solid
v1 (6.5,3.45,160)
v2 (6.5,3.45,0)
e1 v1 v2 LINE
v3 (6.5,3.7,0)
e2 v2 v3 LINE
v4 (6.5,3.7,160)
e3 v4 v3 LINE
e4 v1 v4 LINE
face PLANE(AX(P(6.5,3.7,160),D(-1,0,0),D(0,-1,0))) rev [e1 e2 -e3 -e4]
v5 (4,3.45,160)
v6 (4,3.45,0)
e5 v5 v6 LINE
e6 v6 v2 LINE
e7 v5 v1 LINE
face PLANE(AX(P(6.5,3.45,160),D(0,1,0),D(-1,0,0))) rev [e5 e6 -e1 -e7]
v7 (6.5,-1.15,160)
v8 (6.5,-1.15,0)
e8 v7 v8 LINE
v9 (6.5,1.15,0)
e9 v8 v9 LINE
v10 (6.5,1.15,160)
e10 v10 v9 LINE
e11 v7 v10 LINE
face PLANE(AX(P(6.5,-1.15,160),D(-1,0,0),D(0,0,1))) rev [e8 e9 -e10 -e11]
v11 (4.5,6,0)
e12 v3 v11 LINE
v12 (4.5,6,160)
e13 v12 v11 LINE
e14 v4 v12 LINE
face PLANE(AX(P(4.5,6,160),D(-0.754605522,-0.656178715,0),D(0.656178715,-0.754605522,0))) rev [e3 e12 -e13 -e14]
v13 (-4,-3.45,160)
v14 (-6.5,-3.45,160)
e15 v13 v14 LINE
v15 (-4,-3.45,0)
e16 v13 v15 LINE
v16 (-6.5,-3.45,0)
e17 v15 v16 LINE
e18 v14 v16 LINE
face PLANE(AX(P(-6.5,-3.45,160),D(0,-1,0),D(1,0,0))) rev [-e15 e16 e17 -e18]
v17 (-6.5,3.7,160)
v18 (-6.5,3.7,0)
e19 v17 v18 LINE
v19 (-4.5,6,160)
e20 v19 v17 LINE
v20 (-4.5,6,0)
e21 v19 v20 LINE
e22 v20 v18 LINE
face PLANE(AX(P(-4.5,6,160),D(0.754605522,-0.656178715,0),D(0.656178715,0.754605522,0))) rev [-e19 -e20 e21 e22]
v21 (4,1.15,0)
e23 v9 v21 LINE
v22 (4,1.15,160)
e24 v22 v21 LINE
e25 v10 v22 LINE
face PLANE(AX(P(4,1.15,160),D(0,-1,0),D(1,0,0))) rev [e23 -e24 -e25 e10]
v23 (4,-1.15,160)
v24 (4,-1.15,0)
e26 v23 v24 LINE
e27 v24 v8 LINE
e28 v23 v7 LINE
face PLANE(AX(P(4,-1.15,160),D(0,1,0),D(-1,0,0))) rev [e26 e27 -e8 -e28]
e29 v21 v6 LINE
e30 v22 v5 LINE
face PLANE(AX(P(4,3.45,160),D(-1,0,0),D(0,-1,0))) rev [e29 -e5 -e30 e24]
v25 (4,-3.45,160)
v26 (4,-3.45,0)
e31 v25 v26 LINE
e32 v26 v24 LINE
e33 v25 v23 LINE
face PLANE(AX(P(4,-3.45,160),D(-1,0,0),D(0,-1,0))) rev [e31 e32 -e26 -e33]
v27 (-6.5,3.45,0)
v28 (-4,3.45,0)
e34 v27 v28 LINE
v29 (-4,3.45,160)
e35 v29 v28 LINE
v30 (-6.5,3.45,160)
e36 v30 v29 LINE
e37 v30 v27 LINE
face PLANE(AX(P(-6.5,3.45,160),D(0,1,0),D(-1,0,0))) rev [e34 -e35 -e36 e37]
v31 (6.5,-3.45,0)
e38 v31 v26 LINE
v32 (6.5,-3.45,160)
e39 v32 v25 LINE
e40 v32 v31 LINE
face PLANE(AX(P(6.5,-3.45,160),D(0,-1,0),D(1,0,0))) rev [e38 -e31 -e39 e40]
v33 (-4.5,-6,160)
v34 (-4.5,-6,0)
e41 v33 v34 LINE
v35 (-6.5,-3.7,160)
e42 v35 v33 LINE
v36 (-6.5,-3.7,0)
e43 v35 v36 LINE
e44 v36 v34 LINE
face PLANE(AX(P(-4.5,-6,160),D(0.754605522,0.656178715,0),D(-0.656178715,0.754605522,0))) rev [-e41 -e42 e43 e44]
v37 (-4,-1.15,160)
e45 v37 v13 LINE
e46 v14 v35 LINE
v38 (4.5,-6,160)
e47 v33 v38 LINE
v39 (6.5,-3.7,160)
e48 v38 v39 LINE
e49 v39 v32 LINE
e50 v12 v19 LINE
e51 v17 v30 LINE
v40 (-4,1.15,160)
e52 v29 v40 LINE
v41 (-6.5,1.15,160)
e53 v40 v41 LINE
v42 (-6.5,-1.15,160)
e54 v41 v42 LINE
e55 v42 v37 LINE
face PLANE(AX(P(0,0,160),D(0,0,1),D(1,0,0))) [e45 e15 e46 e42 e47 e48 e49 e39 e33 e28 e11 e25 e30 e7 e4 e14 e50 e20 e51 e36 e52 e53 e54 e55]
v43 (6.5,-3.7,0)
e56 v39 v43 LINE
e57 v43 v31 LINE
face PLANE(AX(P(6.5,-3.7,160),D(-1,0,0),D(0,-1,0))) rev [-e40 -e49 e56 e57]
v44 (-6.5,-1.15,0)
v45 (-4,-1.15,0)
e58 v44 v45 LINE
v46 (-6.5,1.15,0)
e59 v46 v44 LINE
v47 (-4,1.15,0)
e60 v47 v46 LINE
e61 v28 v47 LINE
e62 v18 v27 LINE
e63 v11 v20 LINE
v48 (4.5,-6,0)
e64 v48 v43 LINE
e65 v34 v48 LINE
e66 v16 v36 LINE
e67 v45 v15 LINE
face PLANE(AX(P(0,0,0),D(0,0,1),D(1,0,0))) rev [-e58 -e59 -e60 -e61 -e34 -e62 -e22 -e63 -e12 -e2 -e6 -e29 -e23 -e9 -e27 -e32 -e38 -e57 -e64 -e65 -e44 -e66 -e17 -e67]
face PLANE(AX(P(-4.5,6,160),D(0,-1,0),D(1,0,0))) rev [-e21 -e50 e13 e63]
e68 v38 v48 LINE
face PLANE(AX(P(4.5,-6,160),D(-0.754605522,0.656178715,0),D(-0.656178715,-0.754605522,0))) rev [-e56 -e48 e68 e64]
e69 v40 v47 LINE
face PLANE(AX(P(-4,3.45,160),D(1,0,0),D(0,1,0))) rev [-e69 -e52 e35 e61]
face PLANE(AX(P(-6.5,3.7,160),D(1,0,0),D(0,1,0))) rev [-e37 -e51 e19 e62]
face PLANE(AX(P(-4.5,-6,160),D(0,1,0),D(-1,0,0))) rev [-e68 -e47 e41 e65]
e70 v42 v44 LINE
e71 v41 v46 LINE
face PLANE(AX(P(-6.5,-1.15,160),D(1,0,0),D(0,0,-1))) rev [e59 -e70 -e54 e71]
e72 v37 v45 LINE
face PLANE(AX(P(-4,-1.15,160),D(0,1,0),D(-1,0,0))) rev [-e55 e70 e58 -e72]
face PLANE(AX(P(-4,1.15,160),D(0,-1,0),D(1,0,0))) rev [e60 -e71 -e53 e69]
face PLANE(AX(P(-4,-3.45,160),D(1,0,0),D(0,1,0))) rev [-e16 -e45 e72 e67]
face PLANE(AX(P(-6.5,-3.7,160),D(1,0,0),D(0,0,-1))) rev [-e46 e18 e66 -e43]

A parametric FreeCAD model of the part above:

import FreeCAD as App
import Part
import Sketcher

doc = App.newDocument("Part")
body = doc.addObject("PartDesign::Body", "Body")

# Sketch on XY plane
sketch1 = body.newObject("Sketcher::SketchObject", "Sketch")
sketch1.AttachmentSupport = (doc.getObject("XY_Plane"), [""])
sketch1.MapMode = "FlatFace"
sketch1.addGeometry([
    Part.LineSegment(App.Vector(-4.5, -6, 0), App.Vector(4.5, -6, 0)),  # 0
    Part.LineSegment(App.Vector(4.5, -6, 0), App.Vector(6.5, -3.7, 0)),  # 1
    Part.LineSegment(App.Vector(6.5, -3.7, 0), App.Vector(6.5, -3.45, 0)),  # 2
    Part.LineSegment(App.Vector(6.5, -3.45, 0), App.Vector(4, -3.45, 0)),  # 3
    Part.LineSegment(App.Vector(4, -3.45, 0), App.Vector(4, -1.15, 0)),  # 4
    Part.LineSegment(App.Vector(4, -1.15, 0), App.Vector(6.5, -1.15, 0)),  # 5
    Part.LineSegment(App.Vector(6.5, -1.15, 0), App.Vector(6.5, 1.15, 0)),  # 6
    Part.LineSegment(App.Vector(6.5, 1.15, 0), App.Vector(4, 1.15, 0)),  # 7
    Part.LineSegment(App.Vector(4, 1.15, 0), App.Vector(4, 3.45, 0)),  # 8
    Part.LineSegment(App.Vector(4, 3.45, 0), App.Vector(6.5, 3.45, 0)),  # 9
    Part.LineSegment(App.Vector(6.5, 3.45, 0), App.Vector(6.5, 3.7, 0)),  # 10
    Part.LineSegment(App.Vector(6.5, 3.7, 0), App.Vector(4.5, 6, 0)),  # 11
    Part.LineSegment(App.Vector(4.5, 6, 0), App.Vector(-4.5, 6, 0)),  # 12
    Part.LineSegment(App.Vector(-4.5, 6, 0), App.Vector(-6.5, 3.7, 0)),  # 13
    Part.LineSegment(App.Vector(-6.5, 3.7, 0), App.Vector(-6.5, 3.45, 0)),  # 14
    Part.LineSegment(App.Vector(-6.5, 3.45, 0), App.Vector(-4, 3.45, 0)),  # 15
    Part.LineSegment(App.Vector(-4, 3.45, 0), App.Vector(-4, 1.15, 0)),  # 16
    Part.LineSegment(App.Vector(-4, 1.15, 0), App.Vector(-6.5, 1.15, 0)),  # 17
    Part.LineSegment(App.Vector(-6.5, 1.15, 0), App.Vector(-6.5, -1.15, 0)),  # 18
    Part.LineSegment(App.Vector(-6.5, -1.15, 0), App.Vector(-4, -1.15, 0)),  # 19
    Part.LineSegment(App.Vector(-4, -1.15, 0), App.Vector(-4, -3.45, 0)),  # 20
    Part.LineSegment(App.Vector(-4, -3.45, 0), App.Vector(-6.5, -3.45, 0)),  # 21
    Part.LineSegment(App.Vector(-6.5, -3.45, 0), App.Vector(-6.5, -3.7, 0)),  # 22
    Part.LineSegment(App.Vector(-6.5, -3.7, 0), App.Vector(-4.5, -6, 0)),  # 23
], False)
sketch1.addConstraint([
    Sketcher.Constraint("Coincident", 0, 2, 1, 1),
    Sketcher.Constraint("Coincident", 1, 2, 2, 1),
    Sketcher.Constraint("Coincident", 2, 2, 3, 1),
    Sketcher.Constraint("Coincident", 3, 2, 4, 1),
    Sketcher.Constraint("Coincident", 4, 2, 5, 1),
    Sketcher.Constraint("Coincident", 5, 2, 6, 1),
    Sketcher.Constraint("Coincident", 6, 2, 7, 1),
    Sketcher.Constraint("Coincident", 7, 2, 8, 1),
    Sketcher.Constraint("Coincident", 8, 2, 9, 1),
    Sketcher.Constraint("Coincident", 9, 2, 10, 1),
    Sketcher.Constraint("Coincident", 10, 2, 11, 1),
    Sketcher.Constraint("Coincident", 11, 2, 12, 1),
    Sketcher.Constraint("Coincident", 12, 2, 13, 1),
    Sketcher.Constraint("Coincident", 13, 2, 14, 1),
    Sketcher.Constraint("Coincident", 14, 2, 15, 1),
    Sketcher.Constraint("Coincident", 15, 2, 16, 1),
    Sketcher.Constraint("Coincident", 16, 2, 17, 1),
    Sketcher.Constraint("Coincident", 17, 2, 18, 1),
    Sketcher.Constraint("Coincident", 18, 2, 19, 1),
    Sketcher.Constraint("Coincident", 19, 2, 20, 1),
    Sketcher.Constraint("Coincident", 20, 2, 21, 1),
    Sketcher.Constraint("Coincident", 21, 2, 22, 1),
    Sketcher.Constraint("Coincident", 22, 2, 23, 1),
    Sketcher.Constraint("Coincident", 23, 2, 0, 1),
    Sketcher.Constraint("Horizontal", 0),
    Sketcher.Constraint("Vertical", 2),
    Sketcher.Constraint("Horizontal", 3),
    Sketcher.Constraint("Vertical", 4),
    Sketcher.Constraint("Horizontal", 5),
    Sketcher.Constraint("Vertical", 6),
    Sketcher.Constraint("Horizontal", 7),
    Sketcher.Constraint("Vertical", 8),
    Sketcher.Constraint("Horizontal", 9),
    Sketcher.Constraint("Vertical", 10),
    Sketcher.Constraint("Horizontal", 12),
    Sketcher.Constraint("Vertical", 14),
    Sketcher.Constraint("Horizontal", 15),
    Sketcher.Constraint("Vertical", 16),
    Sketcher.Constraint("Horizontal", 17),
    Sketcher.Constraint("Vertical", 18),
    Sketcher.Constraint("Horizontal", 19),
    Sketcher.Constraint("Vertical", 20),
    Sketcher.Constraint("Horizontal", 21),
    Sketcher.Constraint("Vertical", 22),
    Sketcher.Constraint("Symmetric", 0, 2, 12, 2, -1, 1),
    Sketcher.Constraint("Symmetric", 1, 2, 13, 2, -1, 1),
    Sketcher.Constraint("Symmetric", 3, 2, 15, 2, -1, 1),
    Sketcher.Constraint("Symmetric", 5, 2, 17, 2, -1, 1),
    Sketcher.Constraint("Symmetric", 7, 2, 19, 2, -1, 1),
    Sketcher.Constraint("Symmetric", 9, 2, 21, 2, -1, 1),
    Sketcher.Constraint("Symmetric", 10, 2, 13, 2, -2),
    Sketcher.Constraint("Symmetric", 8, 2, 15, 2, -2),
    Sketcher.Constraint("Parallel", 11, 23),
    Sketcher.Constraint("Horizontal", 7, 2, 16, 2),
    Sketcher.Constraint("Horizontal", 1, 2, 22, 2),
    Sketcher.Constraint("Vertical", 2, 2, 5, 2),
    Sketcher.Constraint("Vertical", 0, 2, 11, 2),
    Sketcher.Constraint("Equal", 4, 6),
    Sketcher.Constraint("DistanceX", 0, 1, 0, 2, 9.0),
    Sketcher.Constraint("DistanceX", 3, 2, 3, 1, 2.5),
    Sketcher.Constraint("DistanceY", 4, 1, 4, 2, 2.3),
    Sketcher.Constraint("DistanceY", 0, 2, -1, 1, 6.0),
    Sketcher.Constraint("DistanceX", -1, 1, 3, 2, 4.0),
    Sketcher.Constraint("DistanceY", 2, 1, 2, 2, 0.25),
])
pad1 = body.newObject("PartDesign::Pad", "Pad")
pad1.Profile = sketch1
pad1.Length = 160

doc.recompute()
